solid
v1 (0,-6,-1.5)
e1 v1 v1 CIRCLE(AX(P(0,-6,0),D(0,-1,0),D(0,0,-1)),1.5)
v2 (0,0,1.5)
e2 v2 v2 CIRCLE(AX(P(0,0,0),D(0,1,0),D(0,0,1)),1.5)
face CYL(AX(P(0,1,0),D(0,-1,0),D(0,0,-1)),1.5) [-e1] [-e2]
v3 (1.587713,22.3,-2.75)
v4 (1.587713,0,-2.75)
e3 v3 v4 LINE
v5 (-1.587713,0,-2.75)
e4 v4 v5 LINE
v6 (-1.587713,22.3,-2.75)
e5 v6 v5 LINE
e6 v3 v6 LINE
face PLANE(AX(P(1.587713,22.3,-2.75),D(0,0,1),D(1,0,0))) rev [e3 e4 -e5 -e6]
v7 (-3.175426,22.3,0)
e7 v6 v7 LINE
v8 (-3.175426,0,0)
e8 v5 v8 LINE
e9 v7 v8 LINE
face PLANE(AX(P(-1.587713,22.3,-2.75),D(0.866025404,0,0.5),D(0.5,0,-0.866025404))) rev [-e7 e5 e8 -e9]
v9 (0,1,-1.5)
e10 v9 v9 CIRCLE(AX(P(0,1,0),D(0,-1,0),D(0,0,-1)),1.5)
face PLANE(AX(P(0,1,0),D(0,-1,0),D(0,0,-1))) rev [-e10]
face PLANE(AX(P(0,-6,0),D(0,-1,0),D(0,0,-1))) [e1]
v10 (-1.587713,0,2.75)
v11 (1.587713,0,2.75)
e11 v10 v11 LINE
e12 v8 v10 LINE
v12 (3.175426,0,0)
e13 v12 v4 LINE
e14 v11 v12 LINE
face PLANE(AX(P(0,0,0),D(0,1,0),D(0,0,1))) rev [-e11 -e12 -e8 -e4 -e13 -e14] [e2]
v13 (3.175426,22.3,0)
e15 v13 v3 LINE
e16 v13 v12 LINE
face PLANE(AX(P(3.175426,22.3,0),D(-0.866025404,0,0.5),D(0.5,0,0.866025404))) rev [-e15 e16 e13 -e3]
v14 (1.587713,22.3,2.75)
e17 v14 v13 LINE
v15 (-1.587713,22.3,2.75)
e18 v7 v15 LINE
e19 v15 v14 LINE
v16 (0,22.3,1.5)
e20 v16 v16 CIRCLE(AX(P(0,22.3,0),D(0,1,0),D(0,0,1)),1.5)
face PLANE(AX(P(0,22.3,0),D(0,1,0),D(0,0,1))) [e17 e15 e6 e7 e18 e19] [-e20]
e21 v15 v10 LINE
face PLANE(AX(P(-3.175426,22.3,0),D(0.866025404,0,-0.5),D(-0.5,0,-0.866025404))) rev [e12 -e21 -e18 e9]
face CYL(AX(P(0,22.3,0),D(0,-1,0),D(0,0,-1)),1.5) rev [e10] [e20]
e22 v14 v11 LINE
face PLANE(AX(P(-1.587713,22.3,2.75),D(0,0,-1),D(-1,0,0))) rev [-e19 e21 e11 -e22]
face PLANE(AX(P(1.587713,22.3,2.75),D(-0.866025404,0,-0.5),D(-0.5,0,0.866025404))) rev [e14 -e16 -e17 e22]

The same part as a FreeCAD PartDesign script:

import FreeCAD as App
import Part
import Sketcher

V = App.Vector
Q = App.Units.Quantity


def add_polygon(sketch, points):
    """Adds a closed chain of lines whose ends are joined by coincident constraints."""
    first, n = sketch.GeometryCount, len(points)
    for a, b in zip(points, points[1:] + points[:1]):
        sketch.addGeometry(Part.LineSegment(App.Vector(*a, 0), App.Vector(*b, 0)), False)
    for i in range(n):
        sketch.addConstraint(Sketcher.Constraint("Coincident", first + i, 2, first + (i + 1) % n, 1))

doc = App.newDocument("Part")
body = doc.addObject("PartDesign::Body", "Body")

# Sketch on XZ plane
sketch1 = body.newObject("Sketcher::SketchObject", "Sketch")
sketch1.AttachmentSupport = (doc.getObject("XZ_Plane"), [""])
sketch1.MapMode = "FlatFace"
add_polygon(sketch1, [(1.587713, -2.75), (-1.587713, -2.75), (-3.175426, 0), (-1.587713, 2.75), (1.587713, 2.75), (3.175426, 0)])  # lines 0-5
sketch1.addGeometry(Part.Circle(V(0, 0, 0), V(0, 0, 1), 1.5), False)  # 6
sketch1.addConstraint([
    Sketcher.Constraint("Horizontal", 0),
    Sketcher.Constraint("Horizontal", 3),
    Sketcher.Constraint("Coincident", 6, 3, -1, 1),
    Sketcher.Constraint("Symmetric", 0, 2, 3, 2, -1, 1),
    Sketcher.Constraint("Symmetric", 1, 2, 4, 2, -1, 1),
    Sketcher.Constraint("PointOnObject", 1, 2, -1),
    Sketcher.Constraint("Parallel", 2, 5),
    Sketcher.Constraint("Vertical", 0, 2, 2, 2),
    Sketcher.Constraint("Diameter", 6, Q("3 mm")),
    Sketcher.Constraint("Angle", 1, Q("120 deg")),
    Sketcher.Constraint("DistanceY", 0, 2, 2, 2, Q("5.5 mm")),
    Sketcher.Constraint("DistanceX", 0, 2, 0, 1, Q("3.175426 mm")),
])
pad1 = body.newObject("PartDesign::Pad", "Pad")
pad1.Profile = sketch1
pad1.Length = 22.3
pad1.Reversed = True

# Sketch on XZ plane
sketch2 = body.newObject("Sketcher::SketchObject", "Sketch001")
sketch2.AttachmentSupport = (doc.getObject("XZ_Plane"), [""])
sketch2.MapMode = "FlatFace"
sketch2.addGeometry(Part.Circle(V(0, 0, 0), V(0, 0, 1), 1.5), False)
sketch2.addConstraint([
    Sketcher.Constraint("Coincident", 0, 3, -1, 1),
    Sketcher.Constraint("Diameter", 0, Q("3 mm")),
])
pad2 = body.newObject("PartDesign::Pad", "Pad001")
pad2.Profile = sketch2
pad2.Type = "TwoLengths"
pad2.Length = 6
pad2.Length2 = 1

doc.recompute()
